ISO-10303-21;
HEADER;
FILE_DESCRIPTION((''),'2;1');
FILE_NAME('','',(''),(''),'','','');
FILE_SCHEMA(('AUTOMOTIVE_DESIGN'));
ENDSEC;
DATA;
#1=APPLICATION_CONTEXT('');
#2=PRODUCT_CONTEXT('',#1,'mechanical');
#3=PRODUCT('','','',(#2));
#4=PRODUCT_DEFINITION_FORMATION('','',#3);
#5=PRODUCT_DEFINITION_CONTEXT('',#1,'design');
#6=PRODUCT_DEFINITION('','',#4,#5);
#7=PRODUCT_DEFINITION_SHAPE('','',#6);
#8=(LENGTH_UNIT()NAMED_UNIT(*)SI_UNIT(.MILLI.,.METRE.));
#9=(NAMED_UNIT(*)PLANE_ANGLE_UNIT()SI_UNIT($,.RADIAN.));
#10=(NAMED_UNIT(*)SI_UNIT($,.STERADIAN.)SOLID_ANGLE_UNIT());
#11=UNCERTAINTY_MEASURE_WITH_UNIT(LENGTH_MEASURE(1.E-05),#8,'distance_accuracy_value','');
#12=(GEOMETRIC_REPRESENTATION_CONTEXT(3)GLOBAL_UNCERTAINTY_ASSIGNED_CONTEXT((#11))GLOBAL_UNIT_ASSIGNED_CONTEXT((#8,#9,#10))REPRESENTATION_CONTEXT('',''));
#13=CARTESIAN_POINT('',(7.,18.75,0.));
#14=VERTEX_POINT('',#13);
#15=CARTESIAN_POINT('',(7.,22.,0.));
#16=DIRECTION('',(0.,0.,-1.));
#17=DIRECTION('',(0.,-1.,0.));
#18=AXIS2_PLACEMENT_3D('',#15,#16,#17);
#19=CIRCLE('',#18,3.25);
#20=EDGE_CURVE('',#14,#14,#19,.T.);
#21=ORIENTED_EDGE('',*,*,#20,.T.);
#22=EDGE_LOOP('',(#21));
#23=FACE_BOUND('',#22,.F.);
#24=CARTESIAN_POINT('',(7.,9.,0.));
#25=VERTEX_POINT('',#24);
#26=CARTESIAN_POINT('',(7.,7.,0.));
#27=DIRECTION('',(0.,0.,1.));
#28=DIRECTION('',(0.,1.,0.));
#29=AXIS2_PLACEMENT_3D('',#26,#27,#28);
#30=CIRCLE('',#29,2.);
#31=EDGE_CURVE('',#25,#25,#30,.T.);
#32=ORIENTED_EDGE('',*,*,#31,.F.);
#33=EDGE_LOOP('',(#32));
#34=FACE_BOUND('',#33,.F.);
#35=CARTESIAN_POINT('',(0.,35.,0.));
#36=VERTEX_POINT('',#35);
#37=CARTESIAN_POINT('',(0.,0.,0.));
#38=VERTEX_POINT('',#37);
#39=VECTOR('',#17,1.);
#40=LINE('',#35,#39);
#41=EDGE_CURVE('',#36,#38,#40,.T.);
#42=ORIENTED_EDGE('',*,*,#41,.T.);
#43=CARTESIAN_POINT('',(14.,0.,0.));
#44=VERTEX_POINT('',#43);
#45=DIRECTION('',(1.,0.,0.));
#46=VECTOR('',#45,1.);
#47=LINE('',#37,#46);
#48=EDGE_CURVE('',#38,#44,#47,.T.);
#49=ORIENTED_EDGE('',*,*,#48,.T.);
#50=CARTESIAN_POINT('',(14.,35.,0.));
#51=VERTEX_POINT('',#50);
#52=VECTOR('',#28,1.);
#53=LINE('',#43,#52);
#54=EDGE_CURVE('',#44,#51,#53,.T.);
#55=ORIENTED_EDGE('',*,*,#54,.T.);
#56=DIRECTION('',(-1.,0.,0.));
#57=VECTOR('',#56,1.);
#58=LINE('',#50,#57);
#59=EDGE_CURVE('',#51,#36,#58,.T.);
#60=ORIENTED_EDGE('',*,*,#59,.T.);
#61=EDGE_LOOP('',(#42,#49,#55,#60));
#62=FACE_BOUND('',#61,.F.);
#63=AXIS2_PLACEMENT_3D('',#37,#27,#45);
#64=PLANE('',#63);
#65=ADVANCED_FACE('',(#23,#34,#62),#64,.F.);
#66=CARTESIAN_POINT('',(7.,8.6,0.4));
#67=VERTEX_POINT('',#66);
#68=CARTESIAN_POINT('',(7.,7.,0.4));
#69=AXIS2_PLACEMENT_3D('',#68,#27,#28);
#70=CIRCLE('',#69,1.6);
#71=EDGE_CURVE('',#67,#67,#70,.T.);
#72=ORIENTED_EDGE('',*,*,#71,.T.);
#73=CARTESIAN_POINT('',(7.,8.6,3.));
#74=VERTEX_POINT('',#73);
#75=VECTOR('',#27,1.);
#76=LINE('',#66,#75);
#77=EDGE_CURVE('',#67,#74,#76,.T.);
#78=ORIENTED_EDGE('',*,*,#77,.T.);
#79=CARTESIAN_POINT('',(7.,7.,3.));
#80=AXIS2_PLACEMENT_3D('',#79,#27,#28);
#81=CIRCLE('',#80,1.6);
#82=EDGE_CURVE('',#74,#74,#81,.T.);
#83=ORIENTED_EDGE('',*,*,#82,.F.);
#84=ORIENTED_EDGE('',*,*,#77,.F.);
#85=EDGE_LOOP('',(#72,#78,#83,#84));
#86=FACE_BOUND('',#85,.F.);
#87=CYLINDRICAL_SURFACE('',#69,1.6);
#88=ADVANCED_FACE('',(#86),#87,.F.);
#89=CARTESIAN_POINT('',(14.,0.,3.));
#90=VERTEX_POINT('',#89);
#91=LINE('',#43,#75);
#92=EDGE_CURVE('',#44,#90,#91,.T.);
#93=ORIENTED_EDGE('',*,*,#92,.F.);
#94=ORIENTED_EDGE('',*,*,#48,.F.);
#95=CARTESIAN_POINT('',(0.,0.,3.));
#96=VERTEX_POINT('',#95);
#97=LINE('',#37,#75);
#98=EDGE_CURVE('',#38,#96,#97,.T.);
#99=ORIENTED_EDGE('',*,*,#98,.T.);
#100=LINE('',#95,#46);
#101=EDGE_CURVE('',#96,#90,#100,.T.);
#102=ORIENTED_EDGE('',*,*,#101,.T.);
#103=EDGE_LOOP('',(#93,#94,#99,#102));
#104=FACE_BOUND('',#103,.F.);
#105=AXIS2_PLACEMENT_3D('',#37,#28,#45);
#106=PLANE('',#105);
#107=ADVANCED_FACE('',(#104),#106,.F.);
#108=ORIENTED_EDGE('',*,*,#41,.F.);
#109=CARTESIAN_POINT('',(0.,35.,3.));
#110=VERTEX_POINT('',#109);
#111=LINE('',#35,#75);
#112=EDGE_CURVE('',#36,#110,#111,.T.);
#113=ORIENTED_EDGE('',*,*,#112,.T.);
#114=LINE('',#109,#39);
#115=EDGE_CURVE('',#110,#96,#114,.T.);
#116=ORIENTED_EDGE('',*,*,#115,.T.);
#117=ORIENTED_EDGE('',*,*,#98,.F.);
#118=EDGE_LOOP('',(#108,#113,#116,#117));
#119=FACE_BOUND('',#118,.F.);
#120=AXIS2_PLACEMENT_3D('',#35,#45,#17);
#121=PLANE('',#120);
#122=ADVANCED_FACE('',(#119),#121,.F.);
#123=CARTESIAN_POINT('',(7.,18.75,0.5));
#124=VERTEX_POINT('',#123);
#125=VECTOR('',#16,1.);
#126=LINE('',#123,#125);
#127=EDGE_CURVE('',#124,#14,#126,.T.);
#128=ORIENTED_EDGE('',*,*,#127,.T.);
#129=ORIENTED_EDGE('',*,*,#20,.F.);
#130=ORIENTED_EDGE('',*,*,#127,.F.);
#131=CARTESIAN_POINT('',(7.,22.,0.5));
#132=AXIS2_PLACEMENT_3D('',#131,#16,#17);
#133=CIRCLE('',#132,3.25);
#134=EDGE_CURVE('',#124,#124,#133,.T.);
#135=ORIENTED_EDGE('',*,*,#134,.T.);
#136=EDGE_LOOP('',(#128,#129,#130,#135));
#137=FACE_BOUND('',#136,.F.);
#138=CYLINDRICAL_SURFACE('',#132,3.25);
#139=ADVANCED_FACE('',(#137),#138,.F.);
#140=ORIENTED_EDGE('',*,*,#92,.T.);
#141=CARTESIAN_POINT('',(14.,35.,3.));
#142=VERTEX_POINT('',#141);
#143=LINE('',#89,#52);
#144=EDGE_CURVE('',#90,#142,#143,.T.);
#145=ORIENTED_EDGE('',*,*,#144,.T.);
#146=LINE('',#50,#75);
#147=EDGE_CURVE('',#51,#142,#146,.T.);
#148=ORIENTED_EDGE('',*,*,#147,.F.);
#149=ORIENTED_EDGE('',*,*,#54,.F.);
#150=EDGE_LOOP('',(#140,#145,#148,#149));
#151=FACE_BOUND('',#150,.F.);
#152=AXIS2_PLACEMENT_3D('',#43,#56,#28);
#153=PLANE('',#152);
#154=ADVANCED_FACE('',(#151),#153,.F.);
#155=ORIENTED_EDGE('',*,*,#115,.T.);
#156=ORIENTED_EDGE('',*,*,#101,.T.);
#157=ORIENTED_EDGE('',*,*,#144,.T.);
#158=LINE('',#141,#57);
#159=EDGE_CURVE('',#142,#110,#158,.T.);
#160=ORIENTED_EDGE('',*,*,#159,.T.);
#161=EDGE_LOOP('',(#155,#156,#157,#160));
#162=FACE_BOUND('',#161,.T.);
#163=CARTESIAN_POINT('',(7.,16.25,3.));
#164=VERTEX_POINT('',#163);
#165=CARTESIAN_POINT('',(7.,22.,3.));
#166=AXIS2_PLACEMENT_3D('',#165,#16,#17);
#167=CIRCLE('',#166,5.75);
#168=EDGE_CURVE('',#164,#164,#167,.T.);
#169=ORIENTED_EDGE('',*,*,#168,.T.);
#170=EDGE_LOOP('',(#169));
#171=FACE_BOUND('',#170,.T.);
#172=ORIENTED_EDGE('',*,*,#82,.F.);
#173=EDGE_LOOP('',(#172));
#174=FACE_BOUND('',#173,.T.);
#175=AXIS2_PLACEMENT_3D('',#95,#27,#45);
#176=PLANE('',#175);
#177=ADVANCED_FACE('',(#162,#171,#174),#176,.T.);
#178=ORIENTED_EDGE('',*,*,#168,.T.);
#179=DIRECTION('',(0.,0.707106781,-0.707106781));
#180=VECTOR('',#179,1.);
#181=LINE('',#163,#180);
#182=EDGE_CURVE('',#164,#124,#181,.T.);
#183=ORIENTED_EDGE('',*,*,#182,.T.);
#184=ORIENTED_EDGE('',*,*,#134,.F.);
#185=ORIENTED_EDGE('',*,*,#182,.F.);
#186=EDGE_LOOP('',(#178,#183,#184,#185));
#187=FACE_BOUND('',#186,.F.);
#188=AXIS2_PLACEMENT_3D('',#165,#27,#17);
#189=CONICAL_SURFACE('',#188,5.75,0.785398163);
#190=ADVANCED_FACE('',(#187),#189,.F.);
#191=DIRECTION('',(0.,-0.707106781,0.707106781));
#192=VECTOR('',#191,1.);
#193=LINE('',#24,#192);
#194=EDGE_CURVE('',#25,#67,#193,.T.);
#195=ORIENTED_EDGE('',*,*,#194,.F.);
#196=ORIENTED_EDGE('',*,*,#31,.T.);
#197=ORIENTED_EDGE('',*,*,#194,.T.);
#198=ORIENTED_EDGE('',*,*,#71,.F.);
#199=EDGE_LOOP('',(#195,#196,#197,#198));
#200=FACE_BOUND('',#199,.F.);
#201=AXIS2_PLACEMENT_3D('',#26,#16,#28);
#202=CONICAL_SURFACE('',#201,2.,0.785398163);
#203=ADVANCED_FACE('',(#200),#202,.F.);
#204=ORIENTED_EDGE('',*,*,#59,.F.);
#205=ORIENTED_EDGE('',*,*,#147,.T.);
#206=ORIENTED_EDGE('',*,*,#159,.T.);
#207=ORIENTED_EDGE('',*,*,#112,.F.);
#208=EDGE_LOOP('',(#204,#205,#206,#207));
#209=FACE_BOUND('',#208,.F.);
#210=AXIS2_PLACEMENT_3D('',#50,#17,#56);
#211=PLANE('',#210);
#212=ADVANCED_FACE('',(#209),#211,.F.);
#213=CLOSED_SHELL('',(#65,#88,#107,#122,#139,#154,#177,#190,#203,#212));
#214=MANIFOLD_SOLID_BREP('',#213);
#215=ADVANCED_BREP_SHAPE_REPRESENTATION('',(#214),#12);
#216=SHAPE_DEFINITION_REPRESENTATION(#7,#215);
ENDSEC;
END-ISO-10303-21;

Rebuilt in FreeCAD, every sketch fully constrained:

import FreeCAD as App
import Part
import Sketcher
from FreeCAD import Vector
Q = App.Units.Quantity


def add_polygon(sketch, points):
    """Adds a closed chain of lines whose ends are joined by coincident constraints."""
    first, n = sketch.GeometryCount, len(points)
    for a, b in zip(points, points[1:] + points[:1]):
        sketch.addGeometry(Part.LineSegment(App.Vector(*a, 0), App.Vector(*b, 0)), False)
    for i in range(n):
        sketch.addConstraint(Sketcher.Constraint("Coincident", first + i, 2, first + (i + 1) % n, 1))

doc = App.newDocument("Part")
body = doc.addObject("PartDesign::Body", "Body")

# Sketch on XY plane
sketch1 = body.newObject("Sketcher::SketchObject", "Sketch")
sketch1.AttachmentSupport = (doc.getObject("XY_Plane"), [""])
sketch1.MapMode = "FlatFace"
add_polygon(sketch1, [(0, 35), (0, 0), (14, 0), (14, 35)])  # lines 0-3
sketch1.addConstraint([
    Sketcher.Constraint("Vertical", 0),
    Sketcher.Constraint("Horizontal", 1),
    Sketcher.Constraint("Vertical", 2),
    Sketcher.Constraint("Horizontal", 3),
    Sketcher.Constraint("Coincident", 0, 2, -1, 1),
    Sketcher.Constraint("DistanceX", 1, 1, 1, 2, Q("14 mm")),
    Sketcher.Constraint("DistanceY", 0, 2, 0, 1, Q("35 mm")),
])
pad1 = body.newObject("PartDesign::Pad", "Pad")
pad1.Profile = sketch1
pad1.Length = 3

# Sketch on XY plane
sketch2 = body.newObject("Sketcher::SketchObject", "Sketch001")
sketch2.AttachmentSupport = (doc.getObject("XY_Plane"), [""])
sketch2.MapMode = "FlatFace"
sketch2.AttachmentOffset = App.Placement(Vector(0, 0, 3), App.Rotation())
sketch2.addGeometry(Part.Circle(Vector(7, 22, 0), Vector(0, 0, 1), 3.2), False)
sketch2.addConstraint([
    Sketcher.Constraint("Diameter", 0, Q("6.5 mm")),
    Sketcher.Constraint("DistanceX", -1, 1, 0, 3, Q("7 mm")),
    Sketcher.Constraint("DistanceY", -1, 1, 0, 3, Q("22 mm")),
])
doc.recompute()
hole = body.newObject("PartDesign::Hole", "Hole")
hole.Profile = sketch2
hole.ThreadType = "None"
hole.Diameter = 6.5
hole.DepthType = "Dimension"
hole.Depth = 3
hole.DrillPoint = "Angled"
hole.DrillPointAngle = 118
hole.HoleCutType = "Countersink"
hole.HoleCutDiameter = 11.5
hole.HoleCutCountersinkAngle = 90

# Sketch on XY plane
sketch3 = body.newObject("Sketcher::SketchObject", "Sketch002")
sketch3.AttachmentSupport = (doc.getObject("XY_Plane"), [""])
sketch3.MapMode = "FlatFace"
sketch3.addGeometry(Part.Circle(Vector(7, 7, 0), Vector(0, 0, 1), 1.6), False)
sketch3.addConstraint([
    Sketcher.Constraint("Diameter", 0, Q("3.2 mm")),
    Sketcher.Constraint("DistanceX", -1, 1, 0, 3, Q("7 mm")),
    Sketcher.Constraint("DistanceY", -1, 1, 0, 3, Q("7 mm")),
])
doc.recompute()
hole2 = body.newObject("PartDesign::Hole", "Hole001")
hole2.Profile = sketch3
hole2.ThreadType = "None"
hole2.Diameter = 3.2
hole2.DepthType = "Dimension"
hole2.Depth = 3
hole2.DrillPoint = "Angled"
hole2.DrillPointAngle = 118
hole2.HoleCutType = "Countersink"
hole2.HoleCutDiameter = 4
hole2.HoleCutCountersinkAngle = 90
hole2.Reversed = True

doc.recompute()
